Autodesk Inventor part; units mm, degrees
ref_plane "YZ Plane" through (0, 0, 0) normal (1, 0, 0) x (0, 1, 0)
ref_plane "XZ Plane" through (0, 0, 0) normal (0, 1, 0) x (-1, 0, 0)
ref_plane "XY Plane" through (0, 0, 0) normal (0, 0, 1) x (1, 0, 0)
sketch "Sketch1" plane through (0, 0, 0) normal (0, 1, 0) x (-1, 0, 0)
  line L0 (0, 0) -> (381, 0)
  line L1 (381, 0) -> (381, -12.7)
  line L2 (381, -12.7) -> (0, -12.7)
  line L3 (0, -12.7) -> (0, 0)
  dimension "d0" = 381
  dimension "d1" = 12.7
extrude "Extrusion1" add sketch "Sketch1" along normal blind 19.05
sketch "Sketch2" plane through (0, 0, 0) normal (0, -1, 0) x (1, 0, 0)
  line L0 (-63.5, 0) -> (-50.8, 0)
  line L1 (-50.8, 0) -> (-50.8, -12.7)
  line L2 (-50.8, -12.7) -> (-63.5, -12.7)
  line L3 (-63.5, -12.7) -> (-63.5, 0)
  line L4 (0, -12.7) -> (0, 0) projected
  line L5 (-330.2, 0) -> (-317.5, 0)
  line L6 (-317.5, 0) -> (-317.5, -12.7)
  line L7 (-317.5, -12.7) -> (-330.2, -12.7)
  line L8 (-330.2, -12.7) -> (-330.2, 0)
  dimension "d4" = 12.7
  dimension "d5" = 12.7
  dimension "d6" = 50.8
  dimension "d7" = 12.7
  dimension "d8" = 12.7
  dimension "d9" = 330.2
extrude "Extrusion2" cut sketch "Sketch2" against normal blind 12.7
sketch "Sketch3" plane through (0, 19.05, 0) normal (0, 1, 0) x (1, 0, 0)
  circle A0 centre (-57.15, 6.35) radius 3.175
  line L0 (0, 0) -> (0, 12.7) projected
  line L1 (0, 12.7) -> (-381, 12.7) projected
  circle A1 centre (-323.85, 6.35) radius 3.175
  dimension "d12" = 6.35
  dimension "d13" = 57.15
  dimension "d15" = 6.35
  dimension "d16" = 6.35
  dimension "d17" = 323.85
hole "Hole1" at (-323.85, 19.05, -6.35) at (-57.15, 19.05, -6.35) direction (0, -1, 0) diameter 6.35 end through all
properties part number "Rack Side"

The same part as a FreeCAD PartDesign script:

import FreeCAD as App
import Part
import Sketcher
from FreeCAD import Vector
Q = App.Units.Quantity

doc = App.newDocument("Part")
body = doc.addObject("PartDesign::Body", "Body")

# Sketch on XZ plane
sketch1 = body.newObject("Sketcher::SketchObject", "Sketch")
sketch1.AttachmentSupport = (doc.getObject("XZ_Plane"), [""])
sketch1.MapMode = "FlatFace"
sketch1.addGeometry([
    Part.LineSegment(Vector(-381, 0, 0), Vector(0, 0, 0)),
    Part.LineSegment(Vector(0, 0, 0), Vector(0, -13, 0)),
    Part.LineSegment(Vector(0, -13, 0), Vector(-381, -13, 0)),
    Part.LineSegment(Vector(-381, -13, 0), Vector(-381, 0, 0)),
], False)
sketch1.addConstraint([
    Sketcher.Constraint("Coincident", 0, 2, 1, 1),
    Sketcher.Constraint("Coincident", 1, 2, 2, 1),
    Sketcher.Constraint("Coincident", 2, 2, 3, 1),
    Sketcher.Constraint("Coincident", 3, 2, 0, 1),
    Sketcher.Constraint("Horizontal", 0),
    Sketcher.Constraint("Vertical", 1),
    Sketcher.Constraint("Horizontal", 2),
    Sketcher.Constraint("Vertical", 3),
    Sketcher.Constraint("Coincident", 0, 2, -1, 1),
    Sketcher.Constraint("DistanceX", 0, 1, 0, 2, Q("15 in")),
    Sketcher.Constraint("DistanceY", 1, 2, 1, 1, Q("0.5 in")),
])
pad1 = body.newObject("PartDesign::Pad", "Pad")
pad1.Profile = sketch1
pad1.Length = Q("0.75 in")
pad1.Reversed = True

# Sketch on XZ plane
sketch2 = body.newObject("Sketcher::SketchObject", "Sketch001")
sketch2.AttachmentSupport = (doc.getObject("XZ_Plane"), [""])
sketch2.MapMode = "FlatFace"
sketch2.addGeometry([
    Part.LineSegment(Vector(-51, 0, 0), Vector(-64, 0, 0)),  # 0
    Part.LineSegment(Vector(-64, 0, 0), Vector(-64, -13, 0)),  # 1
    Part.LineSegment(Vector(-64, -13, 0), Vector(-51, -13, 0)),  # 2
    Part.LineSegment(Vector(-51, -13, 0), Vector(-51, 0, 0)),  # 3
    Part.LineSegment(Vector(-318, 0, 0), Vector(-330, 0, 0)),  # 4
    Part.LineSegment(Vector(-330, 0, 0), Vector(-330, -13, 0)),  # 5
    Part.LineSegment(Vector(-330, -13, 0), Vector(-318, -13, 0)),  # 6
    Part.LineSegment(Vector(-318, -13, 0), Vector(-318, 0, 0)),  # 7
], False)
sketch2.addConstraint([
    Sketcher.Constraint("Coincident", 0, 2, 1, 1),
    Sketcher.Constraint("Coincident", 1, 2, 2, 1),
    Sketcher.Constraint("Coincident", 2, 2, 3, 1),
    Sketcher.Constraint("Coincident", 3, 2, 0, 1),
    Sketcher.Constraint("Coincident", 4, 2, 5, 1),
    Sketcher.Constraint("Coincident", 5, 2, 6, 1),
    Sketcher.Constraint("Coincident", 6, 2, 7, 1),
    Sketcher.Constraint("Coincident", 7, 2, 4, 1),
    Sketcher.Constraint("Horizontal", 0),
    Sketcher.Constraint("Vertical", 1),
    Sketcher.Constraint("Horizontal", 2),
    Sketcher.Constraint("Vertical", 3),
    Sketcher.Constraint("Horizontal", 4),
    Sketcher.Constraint("Vertical", 5),
    Sketcher.Constraint("Horizontal", 6),
    Sketcher.Constraint("Vertical", 7),
    Sketcher.Constraint("PointOnObject", 0, 2, -1),
    Sketcher.Constraint("PointOnObject", 4, 2, -1),
    Sketcher.Constraint("Horizontal", 2, 2, 5, 2),
    Sketcher.Constraint("Equal", 2, 4),
    Sketcher.Constraint("Equal", 6, 1),
    Sketcher.Constraint("DistanceX", 0, 2, 0, 1, Q("0.5 in")),
    Sketcher.Constraint("DistanceX", 2, 2, -1, 1, Q("2 in")),
    Sketcher.Constraint("DistanceX", 4, 2, -1, 1, Q("13 in")),
])
pocket1 = body.newObject("PartDesign::Pocket", "Pocket")
pocket1.Profile = sketch2
pocket1.Length = Q("0.5 in")

# Sketch on XZ plane
sketch3 = body.newObject("Sketcher::SketchObject", "Sketch002")
sketch3.AttachmentSupport = (doc.getObject("XZ_Plane"), [""])
sketch3.MapMode = "FlatFace"
sketch3.AttachmentOffset = App.Placement(Vector(0, 0, -0.75 * 25.4), App.Rotation())
sketch3.addGeometry([
    Part.Circle(Vector(-323.9, -6.3, 0), Vector(0, 0, 1), 3.2),
    Part.Circle(Vector(-57.1, -6.3, 0), Vector(0, 0, 1), 3.2),
], False)
sketch3.addConstraint([
    Sketcher.Constraint("Equal", 0, 1),
    Sketcher.Constraint("Horizontal", 0, 3, 1, 3),
    Sketcher.Constraint("Diameter", 0, Q("0.25 in")),
    Sketcher.Constraint("DistanceX", 0, 3, 1, 3, Q("10.5 in")),
    Sketcher.Constraint("DistanceX", 0, 3, -1, 1, Q("12.75 in")),
    Sketcher.Constraint("DistanceY", 0, 3, -1, 1, Q("0.25 in")),
])
doc.recompute()
hole = body.newObject("PartDesign::Hole", "Hole")
hole.Profile = sketch3
hole.ThreadType = "None"
hole.Diameter = Q("0.25 in")
hole.DepthType = "ThroughAll"
hole.Reversed = True

doc.recompute()
